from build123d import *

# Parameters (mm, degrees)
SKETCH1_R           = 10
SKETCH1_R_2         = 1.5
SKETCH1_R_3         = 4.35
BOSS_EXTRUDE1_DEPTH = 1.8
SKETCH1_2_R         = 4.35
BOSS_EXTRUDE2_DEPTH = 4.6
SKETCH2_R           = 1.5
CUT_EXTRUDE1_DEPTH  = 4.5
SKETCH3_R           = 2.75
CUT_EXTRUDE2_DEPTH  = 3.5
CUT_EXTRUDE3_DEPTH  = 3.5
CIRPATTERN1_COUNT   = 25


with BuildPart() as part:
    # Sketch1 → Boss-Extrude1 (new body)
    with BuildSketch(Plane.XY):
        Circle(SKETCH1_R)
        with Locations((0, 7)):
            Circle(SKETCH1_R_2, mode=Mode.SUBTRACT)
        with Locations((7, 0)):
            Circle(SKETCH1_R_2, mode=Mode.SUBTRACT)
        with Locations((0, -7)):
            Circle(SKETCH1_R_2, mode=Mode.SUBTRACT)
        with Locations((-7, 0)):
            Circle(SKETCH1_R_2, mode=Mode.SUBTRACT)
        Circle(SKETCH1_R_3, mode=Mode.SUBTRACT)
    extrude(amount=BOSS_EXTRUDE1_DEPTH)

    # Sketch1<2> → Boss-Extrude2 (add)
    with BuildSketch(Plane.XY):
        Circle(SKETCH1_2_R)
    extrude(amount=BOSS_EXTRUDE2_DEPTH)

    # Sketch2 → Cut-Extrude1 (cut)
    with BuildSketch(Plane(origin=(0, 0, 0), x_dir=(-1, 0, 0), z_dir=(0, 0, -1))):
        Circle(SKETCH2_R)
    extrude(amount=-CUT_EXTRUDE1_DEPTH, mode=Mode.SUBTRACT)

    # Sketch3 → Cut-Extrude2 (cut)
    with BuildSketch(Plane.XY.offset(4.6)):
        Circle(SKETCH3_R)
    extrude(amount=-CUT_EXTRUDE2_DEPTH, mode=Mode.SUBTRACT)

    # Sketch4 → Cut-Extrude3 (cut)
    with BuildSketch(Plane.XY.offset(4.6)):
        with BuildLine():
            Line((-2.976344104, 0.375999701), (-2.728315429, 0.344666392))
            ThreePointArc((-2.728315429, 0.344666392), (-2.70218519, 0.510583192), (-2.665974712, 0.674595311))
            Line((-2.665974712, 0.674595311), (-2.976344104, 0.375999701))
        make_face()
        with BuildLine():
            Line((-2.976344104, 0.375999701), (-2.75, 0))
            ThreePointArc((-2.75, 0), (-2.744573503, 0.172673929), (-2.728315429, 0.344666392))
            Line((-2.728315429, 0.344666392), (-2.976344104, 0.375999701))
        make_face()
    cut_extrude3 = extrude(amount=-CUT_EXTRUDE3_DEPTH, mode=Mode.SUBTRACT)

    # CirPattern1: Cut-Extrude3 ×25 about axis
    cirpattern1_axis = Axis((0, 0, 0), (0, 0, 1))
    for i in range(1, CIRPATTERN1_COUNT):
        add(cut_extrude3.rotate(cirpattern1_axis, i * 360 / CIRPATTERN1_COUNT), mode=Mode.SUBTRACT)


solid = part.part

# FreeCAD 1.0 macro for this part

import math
import FreeCAD as App
import Part
import Sketcher
from FreeCAD import Vector

doc = App.newDocument("Part")
params = doc.addObject("Spreadsheet::Sheet", "Params")
for row, (alias, value) in enumerate([
    ("sketch1_diameter", "20 mm"),
    ("sketch1_diameter2", "3 mm"),
    ("sketch1_diameter3", "8.7 mm"),
    ("pad1_length", "1.8 mm"),
    ("sketch2_diameter", "8.7 mm"),
    ("pad2_length", "4.6 mm"),
    ("sketch3_diameter", "3 mm"),
    ("pocket1_length", "4.5 mm"),
    ("sketch4_diameter", "5.5 mm"),
    ("pocket2_length", "3.5 mm"),
    ("sketch5_radius", "2.75 mm"),
    ("pocket3_length", "3.5 mm"),
], start=1):
    params.set(f"A{row}", alias)
    params.set(f"B{row}", "=" + value)
    params.setAlias(f"B{row}", alias)

body = doc.addObject("PartDesign::Body", "Body")

sketch1 = doc.addObject("Sketcher::SketchObject", "Sketch")
body.addObject(sketch1)
sketch1.AttachmentSupport = (doc.XY_Plane, [""])
sketch1.MapMode = "FlatFace"
sketch1.addGeometry(Part.Circle(Vector(0, 0, 0), Vector(0, 0, 1), 10), False)
sketch1.addGeometry(Part.Circle(Vector(0, -7, 0), Vector(0, 0, 1), 1.5), False)
sketch1.addGeometry(Part.Circle(Vector(-7, 0, 0), Vector(0, 0, 1), 1.5), False)
sketch1.addGeometry(Part.Circle(Vector(0, 0, 0), Vector(0, 0, 1), 4.3), False)
sketch1.addGeometry(Part.Circle(Vector(7, 0, 0), Vector(0, 0, 1), 1.5), False)
sketch1.addGeometry(Part.Circle(Vector(0, 7, 0), Vector(0, 0, 1), 1.5), False)
sketch1.addConstraint(Sketcher.Constraint("Coincident", 0, 3, -1, 1))
sketch1.addConstraint(Sketcher.Constraint("Coincident", 3, 3, -1, 1))
sketch1.addConstraint(Sketcher.Constraint("Equal", 1, 2))
sketch1.addConstraint(Sketcher.Constraint("Equal", 2, 4))
sketch1.addConstraint(Sketcher.Constraint("Equal", 4, 5))
sketch1.addConstraint(Sketcher.Constraint("Symmetric", 2, 3, 4, 3, -1, 1))
sketch1.addConstraint(Sketcher.Constraint("Symmetric", 1, 3, 5, 3, -1, 1))
sketch1.addConstraint(Sketcher.Constraint("PointOnObject", 1, 3, -2))
sketch1.addConstraint(Sketcher.Constraint("PointOnObject", 2, 3, -1))
sketch1.addConstraint(Sketcher.Constraint("Diameter", 0, 20.0))
sketch1.addConstraint(Sketcher.Constraint("Diameter", 1, 3.0))
sketch1.addConstraint(Sketcher.Constraint("Diameter", 3, 8.7))
sketch1.addConstraint(Sketcher.Constraint("DistanceY", 1, 3, -1, 1, 7.0))
sketch1.addConstraint(Sketcher.Constraint("DistanceX", 2, 3, -1, 1, 7.0))
sketch1.setExpression("Constraints[9]", "Params.sketch1_diameter")
sketch1.setExpression("Constraints[10]", "Params.sketch1_diameter2")
sketch1.setExpression("Constraints[11]", "Params.sketch1_diameter3")
pad1 = doc.addObject("PartDesign::Pad", "Pad")
body.addObject(pad1)
pad1.Profile = sketch1
pad1.setExpression("Length", "Params.pad1_length")

sketch2 = doc.addObject("Sketcher::SketchObject", "Sketch001")
body.addObject(sketch2)
sketch2.AttachmentSupport = (doc.XY_Plane, [""])
sketch2.MapMode = "FlatFace"
sketch2.addGeometry(Part.Circle(Vector(0, 0, 0), Vector(0, 0, 1), 4.3), False)
sketch2.addConstraint(Sketcher.Constraint("Coincident", 0, 3, -1, 1))
sketch2.addConstraint(Sketcher.Constraint("Diameter", 0, 8.7))
sketch2.setExpression("Constraints[1]", "Params.sketch2_diameter")
pad2 = doc.addObject("PartDesign::Pad", "Pad001")
body.addObject(pad2)
pad2.Profile = sketch2
pad2.setExpression("Length", "Params.pad2_length")

sketch3 = doc.addObject("Sketcher::SketchObject", "Sketch002")
body.addObject(sketch3)
sketch3.AttachmentSupport = (doc.XY_Plane, [""])
sketch3.MapMode = "FlatFace"
sketch3.addGeometry(Part.Circle(Vector(0, 0, 0), Vector(0, 0, 1), 1.5), False)
sketch3.addConstraint(Sketcher.Constraint("Coincident", 0, 3, -1, 1))
sketch3.addConstraint(Sketcher.Constraint("Diameter", 0, 3.0))
sketch3.setExpression("Constraints[1]", "Params.sketch3_diameter")
pocket1 = doc.addObject("PartDesign::Pocket", "Pocket")
body.addObject(pocket1)
pocket1.Profile = sketch3
pocket1.setExpression("Length", "Params.pocket1_length")
pocket1.Reversed = True

sketch4 = doc.addObject("Sketcher::SketchObject", "Sketch003")
body.addObject(sketch4)
sketch4.AttachmentSupport = (doc.XY_Plane, [""])
sketch4.MapMode = "FlatFace"
sketch4.AttachmentOffset = App.Placement(Vector(0, 0, 4.6), App.Rotation())
sketch4.addGeometry(Part.Circle(Vector(0, 0, 0), Vector(0, 0, 1), 2.8), False)
sketch4.addConstraint(Sketcher.Constraint("Coincident", 0, 3, -1, 1))
sketch4.addConstraint(Sketcher.Constraint("Diameter", 0, 5.5))
sketch4.setExpression("Constraints[1]", "Params.sketch4_diameter")
pocket2 = doc.addObject("PartDesign::Pocket", "Pocket001")
body.addObject(pocket2)
pocket2.Profile = sketch4
pocket2.setExpression("Length", "Params.pocket2_length")

sketch5 = doc.addObject("Sketcher::SketchObject", "Sketch004")
body.addObject(sketch5)
sketch5.AttachmentSupport = (doc.XY_Plane, [""])
sketch5.MapMode = "FlatFace"
sketch5.AttachmentOffset = App.Placement(Vector(0, 0, 4.6), App.Rotation())
sketch5.addGeometry(Part.ArcOfCircle(Part.Circle(Vector(0, 0, 0), Vector(0, 0, 1), 2.75), math.radians(165.8), math.radians(172.8)), False)
sketch5.addGeometry(Part.LineSegment(Vector(-2.67, 0.67, 0), Vector(-2.98, 0.38, 0)), False)
sketch5.addGeometry(Part.LineSegment(Vector(-2.98, 0.38, 0), Vector(-2.75, 0, 0)), False)
sketch5.addGeometry(Part.ArcOfCircle(Part.Circle(Vector(0, 0, 0), Vector(0, 0, 1), 2.75), math.radians(172.8), math.radians(180)), False)
sketch5.addConstraint(Sketcher.Constraint("Coincident", 0, 1, 1, 1))
sketch5.addConstraint(Sketcher.Constraint("Coincident", 1, 2, 2, 1))
sketch5.addConstraint(Sketcher.Constraint("Coincident", 2, 2, 3, 2))
sketch5.addConstraint(Sketcher.Constraint("Tangent", 3, 1, 0, 2))
sketch5.addConstraint(Sketcher.Constraint("Coincident", 0, 3, -1, 1))
sketch5.addConstraint(Sketcher.Constraint("Equal", 0, 3))
sketch5.addConstraint(Sketcher.Constraint("PointOnObject", 2, 2, -1))
sketch5.addConstraint(Sketcher.Constraint("Radius", 0, 2.75))
sketch5.addConstraint(Sketcher.Constraint("DistanceY", -1, 1, 1, 2, 0.376))
sketch5.addConstraint(Sketcher.Constraint("Distance", 2, 0.438871))
sketch5.addConstraint(Sketcher.Constraint("DistanceX", 1, 2, 0, 1, 0.310369))
sketch5.addConstraint(Sketcher.Constraint("DistanceX", 1, 2, 3, 1, 0.248029))
sketch5.setExpression("Constraints[7]", "Params.sketch5_radius")
pocket3 = doc.addObject("PartDesign::Pocket", "Pocket002")
body.addObject(pocket3)
pocket3.Profile = sketch5
pocket3.setExpression("Length", "Params.pocket3_length")
doc.recompute()

polarpattern = doc.addObject("PartDesign::PolarPattern", "PolarPattern")
body.addObject(polarpattern)
polarpattern.Originals = [pocket3]
polarpattern.Axis = (doc.Z_Axis, [""])
polarpattern.Angle = 360
polarpattern.Occurrences = 25
body.Tip = polarpattern

doc.recompute()
